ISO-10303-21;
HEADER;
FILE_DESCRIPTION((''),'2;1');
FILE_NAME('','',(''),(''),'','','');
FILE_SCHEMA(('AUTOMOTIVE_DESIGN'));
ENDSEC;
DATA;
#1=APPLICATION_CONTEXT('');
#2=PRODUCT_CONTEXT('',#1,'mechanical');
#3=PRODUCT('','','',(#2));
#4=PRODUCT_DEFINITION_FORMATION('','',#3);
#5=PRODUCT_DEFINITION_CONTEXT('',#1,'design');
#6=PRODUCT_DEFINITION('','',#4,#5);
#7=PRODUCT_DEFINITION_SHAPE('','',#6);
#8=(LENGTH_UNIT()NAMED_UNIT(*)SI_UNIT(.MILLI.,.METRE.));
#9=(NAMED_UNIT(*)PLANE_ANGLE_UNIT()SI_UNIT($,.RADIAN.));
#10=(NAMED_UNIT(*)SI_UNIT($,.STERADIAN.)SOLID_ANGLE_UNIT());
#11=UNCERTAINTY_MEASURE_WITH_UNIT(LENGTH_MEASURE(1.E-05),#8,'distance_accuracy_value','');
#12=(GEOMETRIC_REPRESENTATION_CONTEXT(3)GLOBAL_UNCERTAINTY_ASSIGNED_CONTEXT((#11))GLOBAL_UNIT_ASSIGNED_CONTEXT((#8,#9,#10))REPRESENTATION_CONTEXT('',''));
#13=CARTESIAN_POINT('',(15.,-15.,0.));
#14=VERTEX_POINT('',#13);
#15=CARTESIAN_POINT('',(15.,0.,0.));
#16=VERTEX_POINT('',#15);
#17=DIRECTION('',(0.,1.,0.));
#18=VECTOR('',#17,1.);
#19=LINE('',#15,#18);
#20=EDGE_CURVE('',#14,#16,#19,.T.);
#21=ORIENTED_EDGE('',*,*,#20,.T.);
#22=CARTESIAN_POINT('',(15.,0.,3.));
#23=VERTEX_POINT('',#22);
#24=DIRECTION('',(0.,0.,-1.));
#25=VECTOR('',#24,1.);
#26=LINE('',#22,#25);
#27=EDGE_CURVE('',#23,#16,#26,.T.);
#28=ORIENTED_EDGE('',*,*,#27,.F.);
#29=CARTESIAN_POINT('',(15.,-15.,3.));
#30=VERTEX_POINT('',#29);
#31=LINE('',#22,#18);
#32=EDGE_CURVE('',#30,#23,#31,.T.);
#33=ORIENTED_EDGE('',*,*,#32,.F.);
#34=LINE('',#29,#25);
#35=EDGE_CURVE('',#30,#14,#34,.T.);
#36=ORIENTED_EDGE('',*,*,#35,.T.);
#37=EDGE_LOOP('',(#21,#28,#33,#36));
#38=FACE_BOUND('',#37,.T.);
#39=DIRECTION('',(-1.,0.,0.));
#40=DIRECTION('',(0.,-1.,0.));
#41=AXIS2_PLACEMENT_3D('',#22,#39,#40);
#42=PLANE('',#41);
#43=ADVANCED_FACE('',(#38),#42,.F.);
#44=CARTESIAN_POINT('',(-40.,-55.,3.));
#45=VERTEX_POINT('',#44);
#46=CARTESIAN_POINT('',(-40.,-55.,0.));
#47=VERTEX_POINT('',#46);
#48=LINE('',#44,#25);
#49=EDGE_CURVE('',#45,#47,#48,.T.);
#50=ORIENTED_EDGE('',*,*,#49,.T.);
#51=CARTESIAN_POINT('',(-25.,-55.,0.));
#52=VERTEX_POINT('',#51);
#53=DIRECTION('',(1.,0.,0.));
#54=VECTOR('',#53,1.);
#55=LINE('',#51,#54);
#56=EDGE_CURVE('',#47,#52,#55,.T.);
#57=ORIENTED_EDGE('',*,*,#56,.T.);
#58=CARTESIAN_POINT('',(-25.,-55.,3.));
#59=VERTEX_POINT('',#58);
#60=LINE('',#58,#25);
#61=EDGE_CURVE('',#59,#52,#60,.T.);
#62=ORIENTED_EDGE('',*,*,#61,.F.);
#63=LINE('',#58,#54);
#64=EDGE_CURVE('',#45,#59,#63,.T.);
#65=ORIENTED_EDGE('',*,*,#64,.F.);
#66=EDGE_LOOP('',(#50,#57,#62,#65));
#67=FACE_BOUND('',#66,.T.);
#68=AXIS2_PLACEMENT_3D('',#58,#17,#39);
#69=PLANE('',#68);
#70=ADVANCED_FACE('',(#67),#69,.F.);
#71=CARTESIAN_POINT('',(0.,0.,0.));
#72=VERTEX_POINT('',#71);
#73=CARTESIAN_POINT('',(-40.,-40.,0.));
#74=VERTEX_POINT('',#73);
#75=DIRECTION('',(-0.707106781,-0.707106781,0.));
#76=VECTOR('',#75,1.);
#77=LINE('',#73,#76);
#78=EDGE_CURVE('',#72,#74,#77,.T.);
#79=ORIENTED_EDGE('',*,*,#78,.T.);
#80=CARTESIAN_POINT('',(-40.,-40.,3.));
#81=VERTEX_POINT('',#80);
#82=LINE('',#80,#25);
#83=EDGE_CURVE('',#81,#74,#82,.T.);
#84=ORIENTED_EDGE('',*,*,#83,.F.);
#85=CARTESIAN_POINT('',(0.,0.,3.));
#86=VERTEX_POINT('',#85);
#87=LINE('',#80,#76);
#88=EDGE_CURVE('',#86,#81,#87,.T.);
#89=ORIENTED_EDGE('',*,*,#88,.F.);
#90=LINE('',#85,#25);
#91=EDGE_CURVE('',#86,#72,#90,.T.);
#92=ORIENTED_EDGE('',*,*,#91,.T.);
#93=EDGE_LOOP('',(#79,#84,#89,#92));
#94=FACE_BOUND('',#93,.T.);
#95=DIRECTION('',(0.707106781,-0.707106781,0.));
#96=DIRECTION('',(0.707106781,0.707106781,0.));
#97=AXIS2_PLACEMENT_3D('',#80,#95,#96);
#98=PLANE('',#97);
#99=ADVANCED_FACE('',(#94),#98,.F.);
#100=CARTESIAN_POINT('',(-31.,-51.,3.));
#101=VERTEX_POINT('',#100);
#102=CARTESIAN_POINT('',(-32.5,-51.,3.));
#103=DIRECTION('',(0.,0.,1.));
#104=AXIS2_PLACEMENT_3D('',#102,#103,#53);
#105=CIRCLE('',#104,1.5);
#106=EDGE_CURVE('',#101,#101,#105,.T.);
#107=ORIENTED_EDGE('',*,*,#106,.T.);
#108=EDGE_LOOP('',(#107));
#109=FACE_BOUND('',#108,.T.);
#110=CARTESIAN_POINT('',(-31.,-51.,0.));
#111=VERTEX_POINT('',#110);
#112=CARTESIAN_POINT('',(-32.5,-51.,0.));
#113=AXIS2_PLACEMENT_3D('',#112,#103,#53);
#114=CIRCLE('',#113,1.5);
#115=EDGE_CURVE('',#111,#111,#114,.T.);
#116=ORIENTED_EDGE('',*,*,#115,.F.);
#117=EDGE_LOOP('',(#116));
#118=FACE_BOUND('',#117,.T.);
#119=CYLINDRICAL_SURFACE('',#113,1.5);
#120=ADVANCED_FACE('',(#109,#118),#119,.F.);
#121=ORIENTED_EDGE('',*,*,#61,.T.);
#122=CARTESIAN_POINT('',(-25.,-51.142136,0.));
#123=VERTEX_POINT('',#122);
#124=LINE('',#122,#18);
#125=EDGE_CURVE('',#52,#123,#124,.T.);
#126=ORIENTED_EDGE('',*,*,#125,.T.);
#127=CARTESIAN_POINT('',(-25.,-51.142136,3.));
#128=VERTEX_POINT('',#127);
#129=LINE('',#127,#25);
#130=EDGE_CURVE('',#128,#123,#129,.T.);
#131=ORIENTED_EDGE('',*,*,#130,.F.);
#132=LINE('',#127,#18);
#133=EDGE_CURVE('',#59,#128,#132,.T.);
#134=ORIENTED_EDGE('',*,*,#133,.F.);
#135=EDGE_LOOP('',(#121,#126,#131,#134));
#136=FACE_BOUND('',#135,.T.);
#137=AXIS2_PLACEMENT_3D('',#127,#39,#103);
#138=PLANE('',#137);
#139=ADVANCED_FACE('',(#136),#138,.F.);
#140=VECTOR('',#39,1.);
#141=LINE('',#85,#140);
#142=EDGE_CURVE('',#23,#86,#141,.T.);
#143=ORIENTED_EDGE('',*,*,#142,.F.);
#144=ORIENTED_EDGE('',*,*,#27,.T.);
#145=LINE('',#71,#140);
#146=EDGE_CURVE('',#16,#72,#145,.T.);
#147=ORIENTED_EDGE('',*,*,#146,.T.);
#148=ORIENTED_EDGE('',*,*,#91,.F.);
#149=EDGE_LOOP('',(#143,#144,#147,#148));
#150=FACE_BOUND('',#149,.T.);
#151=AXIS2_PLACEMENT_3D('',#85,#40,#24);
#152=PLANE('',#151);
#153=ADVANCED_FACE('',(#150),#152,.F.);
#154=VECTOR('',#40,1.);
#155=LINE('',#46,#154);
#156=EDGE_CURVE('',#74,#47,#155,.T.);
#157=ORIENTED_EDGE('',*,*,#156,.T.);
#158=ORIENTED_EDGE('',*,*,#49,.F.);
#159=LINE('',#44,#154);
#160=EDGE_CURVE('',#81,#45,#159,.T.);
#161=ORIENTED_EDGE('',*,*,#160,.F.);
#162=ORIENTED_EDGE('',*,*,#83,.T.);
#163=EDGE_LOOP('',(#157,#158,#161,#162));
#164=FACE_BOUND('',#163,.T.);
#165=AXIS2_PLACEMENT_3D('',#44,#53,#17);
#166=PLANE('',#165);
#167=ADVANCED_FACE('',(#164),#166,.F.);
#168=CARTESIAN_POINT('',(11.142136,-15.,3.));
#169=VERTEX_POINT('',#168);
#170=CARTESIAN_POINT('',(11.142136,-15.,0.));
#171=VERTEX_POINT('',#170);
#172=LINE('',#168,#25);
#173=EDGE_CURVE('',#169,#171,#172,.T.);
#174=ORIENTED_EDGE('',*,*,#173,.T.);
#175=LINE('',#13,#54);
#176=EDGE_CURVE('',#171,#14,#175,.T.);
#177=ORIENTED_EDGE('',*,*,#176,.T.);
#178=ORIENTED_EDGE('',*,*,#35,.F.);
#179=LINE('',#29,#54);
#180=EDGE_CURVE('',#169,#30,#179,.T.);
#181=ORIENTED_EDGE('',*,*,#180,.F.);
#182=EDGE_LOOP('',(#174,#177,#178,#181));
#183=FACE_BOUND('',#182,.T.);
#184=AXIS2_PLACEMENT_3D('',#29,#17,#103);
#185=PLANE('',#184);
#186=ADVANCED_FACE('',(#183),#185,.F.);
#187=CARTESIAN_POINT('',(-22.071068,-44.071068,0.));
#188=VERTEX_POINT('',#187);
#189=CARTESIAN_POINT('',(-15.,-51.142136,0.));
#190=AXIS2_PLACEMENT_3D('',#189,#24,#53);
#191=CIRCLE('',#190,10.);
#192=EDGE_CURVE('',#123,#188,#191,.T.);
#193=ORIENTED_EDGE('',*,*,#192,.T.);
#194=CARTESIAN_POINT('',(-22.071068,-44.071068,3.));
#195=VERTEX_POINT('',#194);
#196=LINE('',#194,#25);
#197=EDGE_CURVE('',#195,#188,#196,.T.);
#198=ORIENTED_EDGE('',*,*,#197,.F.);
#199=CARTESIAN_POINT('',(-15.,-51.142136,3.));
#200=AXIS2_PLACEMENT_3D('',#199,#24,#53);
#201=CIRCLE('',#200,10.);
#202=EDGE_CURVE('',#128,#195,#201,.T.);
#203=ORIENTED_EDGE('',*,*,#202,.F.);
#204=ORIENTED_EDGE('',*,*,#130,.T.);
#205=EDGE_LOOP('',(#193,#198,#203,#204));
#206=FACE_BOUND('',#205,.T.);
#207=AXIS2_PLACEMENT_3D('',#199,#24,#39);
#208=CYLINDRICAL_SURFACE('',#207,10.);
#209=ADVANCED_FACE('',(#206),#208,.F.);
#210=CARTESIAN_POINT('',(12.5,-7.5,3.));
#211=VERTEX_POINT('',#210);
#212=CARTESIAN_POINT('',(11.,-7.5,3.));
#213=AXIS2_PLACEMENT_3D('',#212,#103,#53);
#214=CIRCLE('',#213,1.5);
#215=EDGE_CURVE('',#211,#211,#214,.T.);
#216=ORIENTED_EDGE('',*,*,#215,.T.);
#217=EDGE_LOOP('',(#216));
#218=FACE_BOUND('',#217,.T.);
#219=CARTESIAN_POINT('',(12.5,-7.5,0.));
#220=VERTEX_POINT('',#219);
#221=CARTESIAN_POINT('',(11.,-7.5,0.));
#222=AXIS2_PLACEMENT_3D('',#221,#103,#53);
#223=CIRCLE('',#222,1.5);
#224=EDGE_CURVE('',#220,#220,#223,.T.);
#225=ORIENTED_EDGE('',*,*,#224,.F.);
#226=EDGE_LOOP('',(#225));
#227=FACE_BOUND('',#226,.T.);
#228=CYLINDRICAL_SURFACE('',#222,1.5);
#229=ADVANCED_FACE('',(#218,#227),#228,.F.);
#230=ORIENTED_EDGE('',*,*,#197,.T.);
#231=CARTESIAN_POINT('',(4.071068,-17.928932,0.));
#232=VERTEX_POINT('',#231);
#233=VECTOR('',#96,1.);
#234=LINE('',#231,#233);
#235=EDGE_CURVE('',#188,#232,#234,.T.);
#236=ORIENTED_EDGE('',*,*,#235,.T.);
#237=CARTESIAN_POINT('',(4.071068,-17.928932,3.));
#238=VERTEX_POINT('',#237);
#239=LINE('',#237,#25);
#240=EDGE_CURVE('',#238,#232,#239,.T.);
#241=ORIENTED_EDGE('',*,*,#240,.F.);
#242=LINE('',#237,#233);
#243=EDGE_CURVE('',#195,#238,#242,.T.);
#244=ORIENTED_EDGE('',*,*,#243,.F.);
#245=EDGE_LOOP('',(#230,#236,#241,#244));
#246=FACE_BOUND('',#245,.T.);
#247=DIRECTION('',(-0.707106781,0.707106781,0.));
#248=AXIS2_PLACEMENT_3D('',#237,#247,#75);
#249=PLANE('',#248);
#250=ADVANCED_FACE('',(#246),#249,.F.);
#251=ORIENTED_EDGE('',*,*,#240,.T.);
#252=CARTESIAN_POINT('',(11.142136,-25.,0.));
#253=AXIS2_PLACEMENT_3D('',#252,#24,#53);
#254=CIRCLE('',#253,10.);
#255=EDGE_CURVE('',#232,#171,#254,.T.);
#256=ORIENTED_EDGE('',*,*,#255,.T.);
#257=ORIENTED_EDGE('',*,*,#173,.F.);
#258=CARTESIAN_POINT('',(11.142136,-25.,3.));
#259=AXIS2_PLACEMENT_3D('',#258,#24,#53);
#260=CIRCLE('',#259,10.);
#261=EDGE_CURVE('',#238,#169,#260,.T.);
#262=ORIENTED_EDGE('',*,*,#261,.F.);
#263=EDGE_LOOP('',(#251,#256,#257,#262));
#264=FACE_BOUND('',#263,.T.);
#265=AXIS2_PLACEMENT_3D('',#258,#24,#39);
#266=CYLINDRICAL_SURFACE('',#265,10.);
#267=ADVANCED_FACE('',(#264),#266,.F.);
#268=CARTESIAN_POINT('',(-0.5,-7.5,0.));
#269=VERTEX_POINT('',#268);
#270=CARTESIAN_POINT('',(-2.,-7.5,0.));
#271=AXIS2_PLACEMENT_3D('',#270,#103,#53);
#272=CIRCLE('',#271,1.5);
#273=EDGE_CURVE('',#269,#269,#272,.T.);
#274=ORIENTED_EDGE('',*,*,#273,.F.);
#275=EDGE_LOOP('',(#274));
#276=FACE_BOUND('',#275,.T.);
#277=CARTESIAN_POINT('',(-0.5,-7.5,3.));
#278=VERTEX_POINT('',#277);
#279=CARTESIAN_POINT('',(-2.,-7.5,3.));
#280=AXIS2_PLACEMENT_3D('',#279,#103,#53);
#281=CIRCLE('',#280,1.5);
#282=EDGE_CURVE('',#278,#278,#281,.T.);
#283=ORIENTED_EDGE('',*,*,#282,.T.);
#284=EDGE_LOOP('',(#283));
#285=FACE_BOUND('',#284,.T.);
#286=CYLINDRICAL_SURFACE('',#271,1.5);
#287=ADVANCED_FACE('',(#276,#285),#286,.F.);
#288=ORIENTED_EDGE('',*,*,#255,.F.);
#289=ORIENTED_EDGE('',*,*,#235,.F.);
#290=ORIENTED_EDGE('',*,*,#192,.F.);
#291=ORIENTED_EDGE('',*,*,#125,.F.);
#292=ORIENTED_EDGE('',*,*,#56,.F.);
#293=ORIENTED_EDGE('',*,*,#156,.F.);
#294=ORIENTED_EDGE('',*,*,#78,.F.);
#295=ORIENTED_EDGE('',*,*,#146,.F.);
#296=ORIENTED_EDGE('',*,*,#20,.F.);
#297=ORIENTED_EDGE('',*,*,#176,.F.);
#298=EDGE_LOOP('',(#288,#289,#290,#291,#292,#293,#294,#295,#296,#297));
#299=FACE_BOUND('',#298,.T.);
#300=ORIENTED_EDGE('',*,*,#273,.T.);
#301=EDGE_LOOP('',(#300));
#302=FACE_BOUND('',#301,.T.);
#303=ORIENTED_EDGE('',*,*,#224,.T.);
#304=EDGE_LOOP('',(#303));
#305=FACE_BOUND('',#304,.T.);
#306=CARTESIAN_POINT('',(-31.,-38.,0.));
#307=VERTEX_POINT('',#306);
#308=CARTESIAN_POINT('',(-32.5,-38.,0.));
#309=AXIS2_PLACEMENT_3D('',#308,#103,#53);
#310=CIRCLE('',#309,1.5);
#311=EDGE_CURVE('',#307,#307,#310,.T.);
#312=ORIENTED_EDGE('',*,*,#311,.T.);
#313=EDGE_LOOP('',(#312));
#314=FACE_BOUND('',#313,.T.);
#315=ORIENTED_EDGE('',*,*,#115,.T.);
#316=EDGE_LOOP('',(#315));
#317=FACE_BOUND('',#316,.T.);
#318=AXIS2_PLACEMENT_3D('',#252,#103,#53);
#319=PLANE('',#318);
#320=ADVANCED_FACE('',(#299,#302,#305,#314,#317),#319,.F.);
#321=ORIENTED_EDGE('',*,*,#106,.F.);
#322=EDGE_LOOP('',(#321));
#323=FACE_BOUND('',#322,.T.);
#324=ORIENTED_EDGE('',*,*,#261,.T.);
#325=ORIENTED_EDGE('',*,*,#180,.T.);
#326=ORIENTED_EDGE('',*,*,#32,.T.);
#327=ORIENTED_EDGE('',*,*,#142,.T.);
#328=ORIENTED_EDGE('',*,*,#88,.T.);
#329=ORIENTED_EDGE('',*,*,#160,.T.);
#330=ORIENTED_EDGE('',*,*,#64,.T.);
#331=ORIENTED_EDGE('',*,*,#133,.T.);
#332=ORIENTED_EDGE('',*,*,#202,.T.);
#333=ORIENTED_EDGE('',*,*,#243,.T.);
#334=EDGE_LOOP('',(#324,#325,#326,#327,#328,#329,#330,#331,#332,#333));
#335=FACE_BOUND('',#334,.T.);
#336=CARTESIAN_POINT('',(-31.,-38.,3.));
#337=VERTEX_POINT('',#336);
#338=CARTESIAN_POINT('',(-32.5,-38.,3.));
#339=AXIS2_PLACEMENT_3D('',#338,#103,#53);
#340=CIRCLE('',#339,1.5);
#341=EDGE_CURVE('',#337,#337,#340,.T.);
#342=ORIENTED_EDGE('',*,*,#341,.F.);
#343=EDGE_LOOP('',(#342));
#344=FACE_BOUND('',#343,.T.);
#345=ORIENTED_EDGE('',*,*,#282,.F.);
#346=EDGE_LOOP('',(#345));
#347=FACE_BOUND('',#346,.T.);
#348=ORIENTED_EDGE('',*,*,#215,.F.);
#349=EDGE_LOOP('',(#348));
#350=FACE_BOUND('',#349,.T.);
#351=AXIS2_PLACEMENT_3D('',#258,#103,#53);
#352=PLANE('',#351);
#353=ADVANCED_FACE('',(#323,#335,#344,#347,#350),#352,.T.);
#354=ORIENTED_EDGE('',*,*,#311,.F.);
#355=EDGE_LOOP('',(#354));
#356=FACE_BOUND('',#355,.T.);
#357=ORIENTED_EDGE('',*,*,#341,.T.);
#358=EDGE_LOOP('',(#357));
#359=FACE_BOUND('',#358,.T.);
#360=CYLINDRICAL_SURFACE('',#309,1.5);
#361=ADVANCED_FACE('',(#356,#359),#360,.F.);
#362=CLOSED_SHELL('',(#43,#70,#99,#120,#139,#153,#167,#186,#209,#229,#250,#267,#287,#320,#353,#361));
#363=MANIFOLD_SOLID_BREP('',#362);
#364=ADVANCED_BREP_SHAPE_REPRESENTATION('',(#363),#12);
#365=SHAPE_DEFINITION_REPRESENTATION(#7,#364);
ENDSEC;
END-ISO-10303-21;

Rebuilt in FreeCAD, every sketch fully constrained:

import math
import FreeCAD as App
import Part
import Sketcher

V = App.Vector

doc = App.newDocument("Part")
params = doc.addObject("Spreadsheet::Sheet", "Params")
for row, (alias, value) in enumerate([
    ("sketch1_radius", "10 mm"),
    ("sketch1_width", "15 mm"),
    ("pad1_length", "3 mm"),
    ("sketch2_diameter", "3 mm"),
    ("pocket1_length", "3 mm"),
], start=1):
    params.set(f"A{row}", alias)
    params.set(f"B{row}", "=" + value)
    params.setAlias(f"B{row}", alias)

body = doc.addObject("PartDesign::Body", "Body")

sketch1 = body.newObject("Sketcher::SketchObject", "Sketch")
sketch1.AttachmentSupport = (doc.getObject("XY_Plane"), [""])
sketch1.MapMode = "FlatFace"
sketch1.addGeometry([
    Part.LineSegment(V(15, 0, 0), V(0, 0, 0)),
    Part.LineSegment(V(0, 0, 0), V(-40, -40, 0)),
    Part.LineSegment(V(-40, -40, 0), V(-40, -55, 0)),
    Part.LineSegment(V(-40, -55, 0), V(-25, -55, 0)),
    Part.LineSegment(V(-25, -55, 0), V(-25, -51.1, 0)),
    Part.ArcOfCircle(Part.Circle(V(-15, -51.1, 0), V(0, 0, 1), 10), math.radians(135), math.radians(180)),
    Part.LineSegment(V(-22.1, -44.1, 0), V(4.1, -17.9, 0)),
    Part.ArcOfCircle(Part.Circle(V(11.1, -25, 0), V(0, 0, 1), 10), math.radians(90), math.radians(135)),
    Part.LineSegment(V(11.1, -15, 0), V(15, -15, 0)),
    Part.LineSegment(V(15, -15, 0), V(15, 0, 0)),
], False)
sketch1.addConstraint([
    Sketcher.Constraint("Coincident", 0, 2, 1, 1),
    Sketcher.Constraint("Coincident", 1, 2, 2, 1),
    Sketcher.Constraint("Coincident", 2, 2, 3, 1),
    Sketcher.Constraint("Coincident", 3, 2, 4, 1),
    Sketcher.Constraint("Tangent", 4, 2, 5, 2),
    Sketcher.Constraint("Tangent", 5, 1, 6, 1),
    Sketcher.Constraint("Tangent", 6, 2, 7, 2),
    Sketcher.Constraint("Tangent", 7, 1, 8, 1),
    Sketcher.Constraint("Coincident", 8, 2, 9, 1),
    Sketcher.Constraint("Coincident", 9, 2, 0, 1),
    Sketcher.Constraint("Horizontal", 0),
    Sketcher.Constraint("Vertical", 2),
    Sketcher.Constraint("Horizontal", 3),
    Sketcher.Constraint("Vertical", 4),
    Sketcher.Constraint("Horizontal", 8),
    Sketcher.Constraint("Vertical", 9),
    Sketcher.Constraint("Coincident", 0, 2, -1, 1),
    Sketcher.Constraint("Equal", 5, 7),
    Sketcher.Constraint("Parallel", 1, 6),
    Sketcher.Constraint("Equal", 0, 3),
    Sketcher.Constraint("Equal", 3, 2),
    Sketcher.Constraint("Equal", 8, 4),
    Sketcher.Constraint("Equal", 2, 9),
    Sketcher.Constraint("Radius", 5, 10.0),
    Sketcher.Constraint("DistanceX", 0, 2, 0, 1, 15.0),
    Sketcher.Constraint("DistanceX", 5, 3, -1, 1, 15.0),
    Sketcher.Constraint("DistanceX", 8, 1, 8, 2, 3.857864),
])
sketch1.setExpression("Constraints[23]", "Params.sketch1_radius")
sketch1.setExpression("Constraints[24]", "Params.sketch1_width")
pad1 = body.newObject("PartDesign::Pad", "Pad")
pad1.Profile = sketch1
pad1.setExpression("Length", "Params.pad1_length")

sketch2 = body.newObject("Sketcher::SketchObject", "Sketch001")
sketch2.AttachmentSupport = (doc.getObject("XY_Plane"), [""])
sketch2.MapMode = "FlatFace"
sketch2.AttachmentOffset = App.Placement(V(0, 0, 3), App.Rotation())
sketch2.addGeometry([
    Part.Circle(V(11, -7.5, 0), V(0, 0, 1), 1.5),
    Part.Circle(V(-2, -7.5, 0), V(0, 0, 1), 1.5),
    Part.Circle(V(-32.5, -51, 0), V(0, 0, 1), 1.5),
    Part.Circle(V(-32.5, -38, 0), V(0, 0, 1), 1.5),
], False)
sketch2.addConstraint([
    Sketcher.Constraint("Equal", 0, 1),
    Sketcher.Constraint("Equal", 1, 2),
    Sketcher.Constraint("Equal", 2, 3),
    Sketcher.Constraint("Horizontal", 0, 3, 1, 3),
    Sketcher.Constraint("Vertical", 2, 3, 3, 3),
    Sketcher.Constraint("Diameter", 0, 3.0),
    Sketcher.Constraint("DistanceX", -1, 1, 0, 3, 11.0),
    Sketcher.Constraint("DistanceX", 1, 3, -1, 1, 2.0),
    Sketcher.Constraint("DistanceY", 2, 3, -1, 1, 51.0),
    Sketcher.Constraint("DistanceY", 3, 3, -1, 1, 38.0),
    Sketcher.Constraint("DistanceY", 0, 3, -1, 1, 7.5),
    Sketcher.Constraint("DistanceX", 2, 3, -1, 1, 32.5),
])
sketch2.setExpression("Constraints[5]", "Params.sketch2_diameter")
pocket1 = body.newObject("PartDesign::Pocket", "Pocket")
pocket1.Profile = sketch2
pocket1.setExpression("Length", "Params.pocket1_length")

doc.recompute()
